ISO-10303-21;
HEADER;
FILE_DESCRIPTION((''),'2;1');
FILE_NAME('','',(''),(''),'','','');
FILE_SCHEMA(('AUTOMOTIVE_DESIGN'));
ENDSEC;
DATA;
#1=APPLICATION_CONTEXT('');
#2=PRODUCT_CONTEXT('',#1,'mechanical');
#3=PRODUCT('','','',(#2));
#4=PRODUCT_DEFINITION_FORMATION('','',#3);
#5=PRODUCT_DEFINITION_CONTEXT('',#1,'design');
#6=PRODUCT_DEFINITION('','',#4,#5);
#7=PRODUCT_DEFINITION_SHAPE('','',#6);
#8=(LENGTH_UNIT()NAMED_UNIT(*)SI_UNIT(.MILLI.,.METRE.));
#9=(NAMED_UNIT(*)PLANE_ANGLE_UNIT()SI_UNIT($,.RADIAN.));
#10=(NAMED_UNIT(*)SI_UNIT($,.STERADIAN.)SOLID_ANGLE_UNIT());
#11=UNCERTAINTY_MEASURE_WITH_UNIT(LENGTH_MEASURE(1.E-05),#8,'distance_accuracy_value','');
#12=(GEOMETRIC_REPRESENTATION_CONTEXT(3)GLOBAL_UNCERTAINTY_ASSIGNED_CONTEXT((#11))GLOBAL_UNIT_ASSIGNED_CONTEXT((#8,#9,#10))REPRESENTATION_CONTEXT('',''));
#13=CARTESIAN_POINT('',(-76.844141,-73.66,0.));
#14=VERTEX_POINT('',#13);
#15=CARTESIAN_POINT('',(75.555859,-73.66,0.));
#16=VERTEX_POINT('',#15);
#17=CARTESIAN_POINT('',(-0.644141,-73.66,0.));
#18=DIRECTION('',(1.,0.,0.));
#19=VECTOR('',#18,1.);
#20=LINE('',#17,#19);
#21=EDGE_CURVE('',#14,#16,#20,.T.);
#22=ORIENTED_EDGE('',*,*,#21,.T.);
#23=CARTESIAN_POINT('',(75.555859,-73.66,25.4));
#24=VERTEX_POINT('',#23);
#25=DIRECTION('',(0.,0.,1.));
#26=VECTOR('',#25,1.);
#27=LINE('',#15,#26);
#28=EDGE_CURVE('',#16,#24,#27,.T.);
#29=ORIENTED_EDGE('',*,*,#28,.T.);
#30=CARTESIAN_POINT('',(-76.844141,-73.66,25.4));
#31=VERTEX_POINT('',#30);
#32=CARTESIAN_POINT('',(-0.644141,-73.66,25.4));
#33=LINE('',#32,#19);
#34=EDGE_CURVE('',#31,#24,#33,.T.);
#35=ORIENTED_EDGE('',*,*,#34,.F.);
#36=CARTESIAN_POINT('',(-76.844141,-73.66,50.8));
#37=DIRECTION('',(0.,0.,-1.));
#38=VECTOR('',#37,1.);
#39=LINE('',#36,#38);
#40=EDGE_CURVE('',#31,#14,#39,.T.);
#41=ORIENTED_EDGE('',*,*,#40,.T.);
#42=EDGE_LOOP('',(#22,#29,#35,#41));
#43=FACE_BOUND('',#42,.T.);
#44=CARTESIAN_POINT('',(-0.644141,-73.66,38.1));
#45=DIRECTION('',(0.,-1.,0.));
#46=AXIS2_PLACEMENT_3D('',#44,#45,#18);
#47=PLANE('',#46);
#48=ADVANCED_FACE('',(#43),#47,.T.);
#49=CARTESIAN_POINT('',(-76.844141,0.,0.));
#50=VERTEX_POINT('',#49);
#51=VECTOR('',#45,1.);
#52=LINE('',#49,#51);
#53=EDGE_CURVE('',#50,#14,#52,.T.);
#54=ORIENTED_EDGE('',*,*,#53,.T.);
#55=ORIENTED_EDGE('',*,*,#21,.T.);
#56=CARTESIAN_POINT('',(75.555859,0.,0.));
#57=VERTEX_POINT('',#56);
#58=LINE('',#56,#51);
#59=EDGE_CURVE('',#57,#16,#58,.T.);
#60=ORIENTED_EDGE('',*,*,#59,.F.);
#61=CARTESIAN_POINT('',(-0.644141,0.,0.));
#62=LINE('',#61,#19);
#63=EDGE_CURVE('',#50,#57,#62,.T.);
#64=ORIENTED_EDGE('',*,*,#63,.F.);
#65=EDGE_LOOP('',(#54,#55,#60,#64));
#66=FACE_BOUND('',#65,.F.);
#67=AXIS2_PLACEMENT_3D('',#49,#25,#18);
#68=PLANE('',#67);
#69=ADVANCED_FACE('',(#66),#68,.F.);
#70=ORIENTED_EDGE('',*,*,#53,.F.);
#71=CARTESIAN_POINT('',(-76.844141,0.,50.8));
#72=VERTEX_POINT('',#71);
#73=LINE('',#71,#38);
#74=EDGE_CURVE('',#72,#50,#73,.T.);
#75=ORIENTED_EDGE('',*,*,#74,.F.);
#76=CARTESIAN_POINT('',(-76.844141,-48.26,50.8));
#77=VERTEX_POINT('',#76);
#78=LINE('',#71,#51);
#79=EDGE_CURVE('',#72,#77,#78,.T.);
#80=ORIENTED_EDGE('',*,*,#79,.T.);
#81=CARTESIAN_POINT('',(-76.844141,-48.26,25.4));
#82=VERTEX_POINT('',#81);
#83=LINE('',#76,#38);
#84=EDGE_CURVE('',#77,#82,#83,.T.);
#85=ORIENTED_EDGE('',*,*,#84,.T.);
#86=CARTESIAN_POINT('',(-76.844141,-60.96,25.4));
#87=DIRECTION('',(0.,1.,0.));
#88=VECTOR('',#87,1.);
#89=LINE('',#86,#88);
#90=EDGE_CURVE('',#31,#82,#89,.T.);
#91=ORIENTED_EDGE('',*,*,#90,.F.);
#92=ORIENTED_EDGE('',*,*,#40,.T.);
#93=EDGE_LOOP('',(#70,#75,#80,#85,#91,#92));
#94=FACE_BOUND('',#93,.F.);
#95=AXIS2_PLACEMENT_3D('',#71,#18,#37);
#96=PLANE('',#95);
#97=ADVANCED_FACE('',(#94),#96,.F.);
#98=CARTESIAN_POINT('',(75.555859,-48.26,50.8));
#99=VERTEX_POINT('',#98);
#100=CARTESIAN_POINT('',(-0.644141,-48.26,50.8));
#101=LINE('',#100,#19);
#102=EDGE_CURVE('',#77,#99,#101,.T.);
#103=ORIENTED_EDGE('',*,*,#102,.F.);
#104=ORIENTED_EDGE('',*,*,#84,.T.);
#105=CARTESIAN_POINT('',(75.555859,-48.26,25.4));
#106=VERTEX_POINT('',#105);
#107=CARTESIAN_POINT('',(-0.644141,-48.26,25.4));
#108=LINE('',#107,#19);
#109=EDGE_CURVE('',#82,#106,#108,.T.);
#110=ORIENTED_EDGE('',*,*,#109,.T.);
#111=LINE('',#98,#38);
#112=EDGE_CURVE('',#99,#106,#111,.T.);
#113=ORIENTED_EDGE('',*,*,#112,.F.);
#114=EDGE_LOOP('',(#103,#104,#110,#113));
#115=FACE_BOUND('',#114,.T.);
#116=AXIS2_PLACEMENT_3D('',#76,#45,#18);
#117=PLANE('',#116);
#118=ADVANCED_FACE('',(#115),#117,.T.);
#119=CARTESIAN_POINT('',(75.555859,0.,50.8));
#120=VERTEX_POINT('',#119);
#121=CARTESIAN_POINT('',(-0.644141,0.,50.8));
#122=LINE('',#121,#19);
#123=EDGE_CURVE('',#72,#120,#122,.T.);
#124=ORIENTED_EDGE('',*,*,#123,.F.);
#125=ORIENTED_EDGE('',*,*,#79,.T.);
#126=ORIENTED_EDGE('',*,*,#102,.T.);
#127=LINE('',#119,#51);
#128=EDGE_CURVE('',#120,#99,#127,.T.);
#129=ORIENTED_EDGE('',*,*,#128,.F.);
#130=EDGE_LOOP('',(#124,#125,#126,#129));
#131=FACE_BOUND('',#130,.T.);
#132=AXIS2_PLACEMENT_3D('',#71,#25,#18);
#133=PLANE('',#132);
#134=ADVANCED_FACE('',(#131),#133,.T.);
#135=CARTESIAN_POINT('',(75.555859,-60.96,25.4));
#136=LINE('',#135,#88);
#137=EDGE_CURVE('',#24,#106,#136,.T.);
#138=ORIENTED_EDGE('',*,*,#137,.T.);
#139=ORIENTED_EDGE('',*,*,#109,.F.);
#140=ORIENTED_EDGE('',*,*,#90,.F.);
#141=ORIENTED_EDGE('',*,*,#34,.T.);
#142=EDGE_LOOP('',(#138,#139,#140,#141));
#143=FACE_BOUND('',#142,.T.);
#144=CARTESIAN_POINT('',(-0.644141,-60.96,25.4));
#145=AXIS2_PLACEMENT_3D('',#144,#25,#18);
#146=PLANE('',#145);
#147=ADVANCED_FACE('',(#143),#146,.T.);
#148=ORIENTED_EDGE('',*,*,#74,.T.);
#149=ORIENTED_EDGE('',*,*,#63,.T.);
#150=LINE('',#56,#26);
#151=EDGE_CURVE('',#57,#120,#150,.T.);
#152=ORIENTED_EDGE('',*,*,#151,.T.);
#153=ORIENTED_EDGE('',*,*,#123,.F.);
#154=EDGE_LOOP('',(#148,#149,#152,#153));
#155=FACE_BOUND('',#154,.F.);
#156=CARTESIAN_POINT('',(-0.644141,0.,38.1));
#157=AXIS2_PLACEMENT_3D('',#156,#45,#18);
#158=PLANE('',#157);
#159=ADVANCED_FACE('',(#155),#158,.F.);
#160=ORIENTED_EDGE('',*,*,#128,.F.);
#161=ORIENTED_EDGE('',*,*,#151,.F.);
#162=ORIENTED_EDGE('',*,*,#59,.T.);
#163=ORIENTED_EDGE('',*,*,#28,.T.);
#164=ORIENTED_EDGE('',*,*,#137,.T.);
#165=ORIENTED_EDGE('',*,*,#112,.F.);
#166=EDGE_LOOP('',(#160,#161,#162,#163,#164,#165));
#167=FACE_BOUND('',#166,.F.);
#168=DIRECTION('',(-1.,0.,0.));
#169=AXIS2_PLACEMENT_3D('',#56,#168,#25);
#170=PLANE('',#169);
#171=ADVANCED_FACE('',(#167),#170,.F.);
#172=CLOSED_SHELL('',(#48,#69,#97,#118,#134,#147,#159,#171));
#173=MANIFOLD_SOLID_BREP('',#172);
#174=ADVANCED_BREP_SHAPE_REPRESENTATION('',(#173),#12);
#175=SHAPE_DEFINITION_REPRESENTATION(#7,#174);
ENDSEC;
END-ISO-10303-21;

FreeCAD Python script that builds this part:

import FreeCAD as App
import Part
import Sketcher

V = App.Vector
Q = App.Units.Quantity


def add_polygon(sketch, points):
    """Adds a closed chain of lines whose ends are joined by coincident constraints."""
    first, n = sketch.GeometryCount, len(points)
    for a, b in zip(points, points[1:] + points[:1]):
        sketch.addGeometry(Part.LineSegment(App.Vector(*a, 0), App.Vector(*b, 0)), False)
    for i in range(n):
        sketch.addConstraint(Sketcher.Constraint("Coincident", first + i, 2, first + (i + 1) % n, 1))

doc = App.newDocument("Part")
body = doc.addObject("PartDesign::Body", "Body")

# Sketch on XZ plane
sketch1 = body.newObject("Sketcher::SketchObject", "Sketch")
sketch1.AttachmentSupport = (doc.getObject("XZ_Plane"), [""])
sketch1.MapMode = "FlatFace"
add_polygon(sketch1, [(-77, 51), (-77, 0), (76, 0), (76, 51)])  # lines 0-3
sketch1.addConstraint([
    Sketcher.Constraint("Vertical", 0),
    Sketcher.Constraint("Horizontal", 1),
    Sketcher.Constraint("Vertical", 2),
    Sketcher.Constraint("Horizontal", 3),
    Sketcher.Constraint("PointOnObject", 0, 2, -1),
    Sketcher.Constraint("DistanceX", 1, 1, 1, 2, Q("6 in")),
    Sketcher.Constraint("DistanceY", 0, 2, 0, 1, Q("2 in")),
    Sketcher.Constraint("DistanceX", 0, 2, -1, 1, 76.844141),
])
pad1 = body.newObject("PartDesign::Pad", "Pad")
pad1.Profile = sketch1
pad1.Length = Q("2.9 in")

# Sketch on XY plane
sketch2 = body.newObject("Sketcher::SketchObject", "Sketch001")
sketch2.AttachmentSupport = (doc.getObject("XY_Plane"), [""])
sketch2.MapMode = "FlatFace"
sketch2.AttachmentOffset = App.Placement(V(0, 0, 2 * 25.4), App.Rotation())
add_polygon(sketch2, [(-77, -48), (-77, -74), (76, -74), (76, -48)])  # lines 0-3
sketch2.addConstraint([
    Sketcher.Constraint("Vertical", 0),
    Sketcher.Constraint("Horizontal", 1),
    Sketcher.Constraint("Vertical", 2),
    Sketcher.Constraint("Horizontal", 3),
    Sketcher.Constraint("DistanceX", 1, 1, 1, 2, Q("6 in")),
    Sketcher.Constraint("DistanceY", 0, 2, 0, 1, Q("1 in")),
    Sketcher.Constraint("DistanceY", 0, 2, -1, 1, Q("2.9 in")),
    Sketcher.Constraint("DistanceX", 0, 2, -1, 1, 76.844141),
])
pocket1 = body.newObject("PartDesign::Pocket", "Pocket")
pocket1.Profile = sketch2
pocket1.Length = Q("1 in")

doc.recompute()
